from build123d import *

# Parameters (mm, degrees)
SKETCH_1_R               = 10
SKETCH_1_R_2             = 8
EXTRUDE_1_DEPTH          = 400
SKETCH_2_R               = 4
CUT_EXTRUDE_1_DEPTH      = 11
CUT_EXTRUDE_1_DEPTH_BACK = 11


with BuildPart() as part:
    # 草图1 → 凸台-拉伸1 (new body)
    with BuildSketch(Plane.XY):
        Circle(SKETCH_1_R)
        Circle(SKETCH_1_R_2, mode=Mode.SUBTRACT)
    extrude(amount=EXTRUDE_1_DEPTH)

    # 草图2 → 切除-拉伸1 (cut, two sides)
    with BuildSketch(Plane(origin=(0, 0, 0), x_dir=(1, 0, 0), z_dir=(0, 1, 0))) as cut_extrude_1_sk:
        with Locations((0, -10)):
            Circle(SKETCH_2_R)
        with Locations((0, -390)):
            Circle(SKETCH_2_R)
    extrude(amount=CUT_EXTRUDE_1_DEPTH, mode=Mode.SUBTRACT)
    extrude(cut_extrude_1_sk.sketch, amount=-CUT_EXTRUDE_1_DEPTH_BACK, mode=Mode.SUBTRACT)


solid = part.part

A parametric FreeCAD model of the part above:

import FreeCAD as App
import Part
import Sketcher

V = App.Vector
Q = App.Units.Quantity

doc = App.newDocument("Part")
body = doc.addObject("PartDesign::Body", "Body")

# Sketch on XY plane
sketch1 = body.newObject("Sketcher::SketchObject", "Sketch")
sketch1.AttachmentSupport = (doc.getObject("XY_Plane"), [""])
sketch1.MapMode = "FlatFace"
sketch1.addGeometry([
    Part.Circle(V(0, 0, 0), V(0, 0, 1), 10),
    Part.Circle(V(0, 0, 0), V(0, 0, 1), 8),
], False)
sketch1.addConstraint([
    Sketcher.Constraint("Coincident", 0, 3, -1, 1),
    Sketcher.Constraint("Coincident", 1, 3, -1, 1),
    Sketcher.Constraint("Diameter", 0, Q("20 mm")),
    Sketcher.Constraint("Diameter", 1, Q("16 mm")),
])
pad1 = body.newObject("PartDesign::Pad", "Pad")
pad1.Profile = sketch1
pad1.Length = 400

# Sketch on XZ plane
sketch2 = body.newObject("Sketcher::SketchObject", "Sketch001")
sketch2.AttachmentSupport = (doc.getObject("XZ_Plane"), [""])
sketch2.MapMode = "FlatFace"
sketch2.addGeometry([
    Part.Circle(V(0, 10, 0), V(0, 0, 1), 4),
    Part.Circle(V(0, 390, 0), V(0, 0, 1), 4),
], False)
sketch2.addConstraint([
    Sketcher.Constraint("Equal", 0, 1),
    Sketcher.Constraint("PointOnObject", 0, 3, -2),
    Sketcher.Constraint("PointOnObject", 1, 3, -2),
    Sketcher.Constraint("Diameter", 0, Q("8 mm")),
    Sketcher.Constraint("DistanceY", -1, 1, 0, 3, Q("10 mm")),
    Sketcher.Constraint("DistanceY", -1, 1, 1, 3, Q("390 mm")),
])
pocket1 = body.newObject("PartDesign::Pocket", "Pocket")
pocket1.Profile = sketch2
pocket1.Type = "ThroughAll"
pocket1.Midplane = True

doc.recompute()
